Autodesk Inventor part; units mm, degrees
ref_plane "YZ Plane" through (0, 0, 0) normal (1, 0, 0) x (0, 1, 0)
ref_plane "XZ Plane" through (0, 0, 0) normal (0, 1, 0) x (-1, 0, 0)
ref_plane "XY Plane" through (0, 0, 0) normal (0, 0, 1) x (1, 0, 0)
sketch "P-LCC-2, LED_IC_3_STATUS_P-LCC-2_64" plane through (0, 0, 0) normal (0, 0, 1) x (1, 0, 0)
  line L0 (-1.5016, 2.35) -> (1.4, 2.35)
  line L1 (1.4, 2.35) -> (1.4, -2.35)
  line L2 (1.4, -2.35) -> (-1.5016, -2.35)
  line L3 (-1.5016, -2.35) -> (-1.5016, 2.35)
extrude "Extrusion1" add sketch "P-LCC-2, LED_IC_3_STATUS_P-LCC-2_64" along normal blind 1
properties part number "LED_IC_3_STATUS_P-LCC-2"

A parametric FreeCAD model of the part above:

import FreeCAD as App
import Part
import Sketcher


def add_polygon(sketch, points):
    """Adds a closed chain of lines whose ends are joined by coincident constraints."""
    first, n = sketch.GeometryCount, len(points)
    for a, b in zip(points, points[1:] + points[:1]):
        sketch.addGeometry(Part.LineSegment(App.Vector(*a, 0), App.Vector(*b, 0)), False)
    for i in range(n):
        sketch.addConstraint(Sketcher.Constraint("Coincident", first + i, 2, first + (i + 1) % n, 1))

doc = App.newDocument("Part")
body = doc.addObject("PartDesign::Body", "Body")

sketch1 = body.newObject("Sketcher::SketchObject", "Sketch")
sketch1.AttachmentSupport = (doc.getObject("XY_Plane"), [""])
sketch1.MapMode = "FlatFace"
add_polygon(sketch1, [(1.4, 2.4), (-1.5, 2.4), (-1.5, -2.4), (1.4, -2.4)])
sketch1.addConstraint([
    Sketcher.Constraint("Horizontal", 0),
    Sketcher.Constraint("Vertical", 1),
    Sketcher.Constraint("Horizontal", 2),
    Sketcher.Constraint("Vertical", 3),
    Sketcher.Constraint("DistanceY", 1, 2, 1, 1, 4.7),
    Sketcher.Constraint("DistanceX", -1, 1, 2, 2, 1.4),
    Sketcher.Constraint("DistanceY", -1, 1, 0, 2, 2.35),
    Sketcher.Constraint("DistanceX", 0, 2, 0, 1, 2.9016),
])
pad1 = body.newObject("PartDesign::Pad", "Pad")
pad1.Profile = sketch1
pad1.Length = 1

doc.recompute()
